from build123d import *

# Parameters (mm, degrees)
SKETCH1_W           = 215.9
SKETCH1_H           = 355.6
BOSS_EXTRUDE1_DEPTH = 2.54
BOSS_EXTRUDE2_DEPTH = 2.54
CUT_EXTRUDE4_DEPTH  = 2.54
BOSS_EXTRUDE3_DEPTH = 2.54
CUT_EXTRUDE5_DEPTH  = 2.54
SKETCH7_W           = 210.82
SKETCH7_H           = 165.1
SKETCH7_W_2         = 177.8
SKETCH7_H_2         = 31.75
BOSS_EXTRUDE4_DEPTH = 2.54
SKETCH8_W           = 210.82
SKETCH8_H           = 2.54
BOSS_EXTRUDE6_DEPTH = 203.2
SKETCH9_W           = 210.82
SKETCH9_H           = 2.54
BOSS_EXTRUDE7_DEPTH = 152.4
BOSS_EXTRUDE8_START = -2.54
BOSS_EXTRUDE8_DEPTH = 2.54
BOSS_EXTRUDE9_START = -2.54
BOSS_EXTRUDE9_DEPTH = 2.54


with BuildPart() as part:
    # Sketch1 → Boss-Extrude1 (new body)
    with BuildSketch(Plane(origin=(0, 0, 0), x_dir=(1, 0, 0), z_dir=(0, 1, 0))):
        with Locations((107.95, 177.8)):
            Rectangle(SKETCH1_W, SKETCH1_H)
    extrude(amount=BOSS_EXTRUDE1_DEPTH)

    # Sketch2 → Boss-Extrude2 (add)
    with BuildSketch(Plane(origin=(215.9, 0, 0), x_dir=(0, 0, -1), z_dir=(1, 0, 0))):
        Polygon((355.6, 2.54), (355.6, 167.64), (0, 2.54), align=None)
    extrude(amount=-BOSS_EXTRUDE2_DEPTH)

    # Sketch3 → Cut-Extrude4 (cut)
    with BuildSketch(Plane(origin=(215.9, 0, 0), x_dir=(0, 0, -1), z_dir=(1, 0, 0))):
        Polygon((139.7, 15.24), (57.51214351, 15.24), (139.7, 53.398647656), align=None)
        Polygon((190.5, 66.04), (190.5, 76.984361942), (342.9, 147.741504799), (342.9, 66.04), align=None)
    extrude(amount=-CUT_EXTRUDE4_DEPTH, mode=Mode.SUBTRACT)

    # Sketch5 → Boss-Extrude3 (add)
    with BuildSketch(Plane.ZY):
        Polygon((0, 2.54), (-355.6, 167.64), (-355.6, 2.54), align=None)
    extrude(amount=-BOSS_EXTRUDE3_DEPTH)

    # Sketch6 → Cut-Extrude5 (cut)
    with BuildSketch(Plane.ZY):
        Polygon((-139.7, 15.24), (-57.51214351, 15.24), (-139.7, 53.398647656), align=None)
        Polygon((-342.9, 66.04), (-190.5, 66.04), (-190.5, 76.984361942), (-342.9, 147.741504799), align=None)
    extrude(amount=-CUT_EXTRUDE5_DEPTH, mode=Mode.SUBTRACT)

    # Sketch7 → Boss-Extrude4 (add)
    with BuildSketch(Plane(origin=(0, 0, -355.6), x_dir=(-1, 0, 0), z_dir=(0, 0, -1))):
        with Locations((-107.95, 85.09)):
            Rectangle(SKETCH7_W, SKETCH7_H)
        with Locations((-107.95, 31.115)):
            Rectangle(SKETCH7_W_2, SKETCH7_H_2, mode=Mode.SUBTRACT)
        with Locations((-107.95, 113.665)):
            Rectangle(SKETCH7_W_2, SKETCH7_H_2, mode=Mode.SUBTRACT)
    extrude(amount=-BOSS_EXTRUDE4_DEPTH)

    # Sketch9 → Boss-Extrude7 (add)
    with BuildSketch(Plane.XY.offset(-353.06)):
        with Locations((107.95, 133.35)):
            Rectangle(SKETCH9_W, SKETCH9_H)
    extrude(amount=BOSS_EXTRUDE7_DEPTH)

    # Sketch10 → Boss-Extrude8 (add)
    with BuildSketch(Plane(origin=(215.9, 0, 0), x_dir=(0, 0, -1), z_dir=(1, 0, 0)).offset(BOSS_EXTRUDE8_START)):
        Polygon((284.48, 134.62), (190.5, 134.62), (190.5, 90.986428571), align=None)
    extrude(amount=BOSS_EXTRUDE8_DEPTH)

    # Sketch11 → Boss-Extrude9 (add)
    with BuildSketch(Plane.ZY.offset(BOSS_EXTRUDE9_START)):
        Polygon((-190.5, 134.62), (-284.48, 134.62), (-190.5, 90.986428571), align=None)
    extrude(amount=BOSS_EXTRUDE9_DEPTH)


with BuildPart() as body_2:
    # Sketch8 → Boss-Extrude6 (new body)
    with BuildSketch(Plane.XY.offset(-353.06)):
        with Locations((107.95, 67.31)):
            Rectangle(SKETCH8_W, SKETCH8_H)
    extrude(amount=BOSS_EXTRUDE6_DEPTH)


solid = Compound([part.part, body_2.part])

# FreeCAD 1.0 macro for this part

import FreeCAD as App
import Part
import Sketcher

V = App.Vector
Q = App.Units.Quantity


def add_polygon(sketch, points):
    """Adds a closed chain of lines whose ends are joined by coincident constraints."""
    first, n = sketch.GeometryCount, len(points)
    for a, b in zip(points, points[1:] + points[:1]):
        sketch.addGeometry(Part.LineSegment(App.Vector(*a, 0), App.Vector(*b, 0)), False)
    for i in range(n):
        sketch.addConstraint(Sketcher.Constraint("Coincident", first + i, 2, first + (i + 1) % n, 1))

doc = App.newDocument("Part")
body = doc.addObject("PartDesign::Body", "Body")

sketch1 = doc.addObject("Sketcher::SketchObject", "Sketch")
body.addObject(sketch1)
sketch1.AttachmentSupport = (doc.XZ_Plane, [""])
sketch1.MapMode = "FlatFace"
add_polygon(sketch1, [(0, -356), (0, 0), (216, 0), (216, -356)])
sketch1.addConstraint(Sketcher.Constraint("Vertical", 0))
sketch1.addConstraint(Sketcher.Constraint("Horizontal", 1))
sketch1.addConstraint(Sketcher.Constraint("Vertical", 2))
sketch1.addConstraint(Sketcher.Constraint("Horizontal", 3))
sketch1.addConstraint(Sketcher.Constraint("Coincident", 0, 2, -1, 1))
sketch1.addConstraint(Sketcher.Constraint("DistanceY", 0, 1, 0, 2, Q("14 in")))
sketch1.addConstraint(Sketcher.Constraint("DistanceX", 1, 1, 1, 2, Q("8.5 in")))
pad1 = doc.addObject("PartDesign::Pad", "Pad")
body.addObject(pad1)
pad1.Profile = sketch1
pad1.Length = Q("0.1 in")
pad1.Reversed = True

sketch2 = doc.addObject("Sketcher::SketchObject", "Sketch001")
body.addObject(sketch2)
sketch2.AttachmentSupport = (doc.YZ_Plane, [""])
sketch2.MapMode = "FlatFace"
sketch2.AttachmentOffset = App.Placement(V(0, 0, 8.5 * 25.4), App.Rotation())
add_polygon(sketch2, [(3, -356), (168, -356), (3, 0)])
sketch2.addConstraint(Sketcher.Constraint("Horizontal", 0))
sketch2.addConstraint(Sketcher.Constraint("Vertical", 2))
sketch2.addConstraint(Sketcher.Constraint("PointOnObject", 1, 2, -1))
sketch2.addConstraint(Sketcher.Constraint("DistanceY", 2, 2, 2, 1, Q("14 in")))
sketch2.addConstraint(Sketcher.Constraint("DistanceX", 0, 1, 0, 2, Q("6.5 in")))
sketch2.addConstraint(Sketcher.Constraint("DistanceX", -1, 1, 0, 2, Q("6.6 in")))
pad2 = doc.addObject("PartDesign::Pad", "Pad001")
body.addObject(pad2)
pad2.Profile = sketch2
pad2.Length = Q("0.1 in")
pad2.Reversed = True

sketch3 = doc.addObject("Sketcher::SketchObject", "Sketch002")
body.addObject(sketch3)
sketch3.AttachmentSupport = (doc.YZ_Plane, [""])
sketch3.MapMode = "FlatFace"
sketch3.AttachmentOffset = App.Placement(V(0, 0, 8.5 * 25.4), App.Rotation())
add_polygon(sketch3, [(15, -58), (15, -140), (53, -140)])
add_polygon(sketch3, [(77, -190), (66, -190), (66, -343), (148, -343)])
sketch3.addConstraint(Sketcher.Constraint("Vertical", 0))
sketch3.addConstraint(Sketcher.Constraint("Horizontal", 1))
sketch3.addConstraint(Sketcher.Constraint("Horizontal", 3))
sketch3.addConstraint(Sketcher.Constraint("Vertical", 4))
sketch3.addConstraint(Sketcher.Constraint("Horizontal", 5))
sketch3.addConstraint(Sketcher.Constraint("Parallel", 2, 6))
sketch3.addConstraint(Sketcher.Constraint("DistanceY", 4, 2, 4, 1, Q("6 in")))
sketch3.addConstraint(Sketcher.Constraint("DistanceY", 3, 2, 1, 2, Q("2 in")))
sketch3.addConstraint(Sketcher.Constraint("DistanceX", 0, 2, 3, 2, Q("2 in")))
sketch3.addConstraint(Sketcher.Constraint("DistanceX", -1, 1, 0, 2, Q("0.6 in")))
sketch3.addConstraint(Sketcher.Constraint("DistanceY", 0, 2, -1, 1, Q("5.5 in")))
sketch3.addConstraint(Sketcher.Constraint("Distance", 6, 168.0248))
sketch3.addConstraint(Sketcher.Constraint("DistanceX", 3, 2, 3, 1, 10.944362))
sketch3.addConstraint(Sketcher.Constraint("Distance", 2, 90.614161))
pocket1 = doc.addObject("PartDesign::Pocket", "Pocket")
body.addObject(pocket1)
pocket1.Profile = sketch3
pocket1.Length = Q("0.1 in")

sketch4 = doc.addObject("Sketcher::SketchObject", "Sketch003")
body.addObject(sketch4)
sketch4.AttachmentSupport = (doc.YZ_Plane, [""])
sketch4.MapMode = "FlatFace"
add_polygon(sketch4, [(3, 0), (168, -356), (3, -356)])
sketch4.addConstraint(Sketcher.Constraint("Horizontal", 1))
sketch4.addConstraint(Sketcher.Constraint("Vertical", 2))
sketch4.addConstraint(Sketcher.Constraint("PointOnObject", 2, 2, -1))
sketch4.addConstraint(Sketcher.Constraint("DistanceY", 2, 1, 2, 2, Q("14 in")))
sketch4.addConstraint(Sketcher.Constraint("DistanceX", 1, 2, 1, 1, Q("6.5 in")))
sketch4.addConstraint(Sketcher.Constraint("DistanceX", -1, 1, 0, 2, Q("6.6 in")))
pad3 = doc.addObject("PartDesign::Pad", "Pad002")
body.addObject(pad3)
pad3.Profile = sketch4
pad3.Length = Q("0.1 in")

sketch5 = doc.addObject("Sketcher::SketchObject", "Sketch004")
body.addObject(sketch5)
sketch5.AttachmentSupport = (doc.YZ_Plane, [""])
sketch5.MapMode = "FlatFace"
add_polygon(sketch5, [(15, -140), (15, -58), (53, -140)])
add_polygon(sketch5, [(66, -343), (66, -190), (77, -190), (148, -343)])
sketch5.addConstraint(Sketcher.Constraint("Vertical", 0))
sketch5.addConstraint(Sketcher.Constraint("Horizontal", 2))
sketch5.addConstraint(Sketcher.Constraint("Vertical", 3))
sketch5.addConstraint(Sketcher.Constraint("Horizontal", 4))
sketch5.addConstraint(Sketcher.Constraint("Horizontal", 6))
sketch5.addConstraint(Sketcher.Constraint("Parallel", 1, 5))
sketch5.addConstraint(Sketcher.Constraint("DistanceY", 3, 1, 3, 2, Q("6 in")))
sketch5.addConstraint(Sketcher.Constraint("DistanceY", 3, 2, 1, 2, Q("2 in")))
sketch5.addConstraint(Sketcher.Constraint("DistanceX", 2, 2, 3, 2, Q("2 in")))
sketch5.addConstraint(Sketcher.Constraint("DistanceX", -1, 1, 0, 2, Q("0.6 in")))
sketch5.addConstraint(Sketcher.Constraint("DistanceY", 1, 2, -1, 1, Q("5.5 in")))
sketch5.addConstraint(Sketcher.Constraint("Distance", 5, 168.0248))
sketch5.addConstraint(Sketcher.Constraint("DistanceX", 4, 1, 4, 2, 10.944362))
sketch5.addConstraint(Sketcher.Constraint("Distance", 1, 90.614161))
pocket2 = doc.addObject("PartDesign::Pocket", "Pocket001")
body.addObject(pocket2)
pocket2.Profile = sketch5
pocket2.Length = Q("0.1 in")
pocket2.Reversed = True

sketch6 = doc.addObject("Sketcher::SketchObject", "Sketch005")
body.addObject(sketch6)
sketch6.AttachmentSupport = (doc.XY_Plane, [""])
sketch6.MapMode = "FlatFace"
sketch6.AttachmentOffset = App.Placement(V(0, 0, -14 * 25.4), App.Rotation())
add_polygon(sketch6, [(213, 168), (213, 3), (3, 3), (3, 168)])
add_polygon(sketch6, [(19, 15), (197, 15), (197, 47), (19, 47)])
add_polygon(sketch6, [(19, 98), (197, 98), (197, 130), (19, 130)])
sketch6.addConstraint(Sketcher.Constraint("Vertical", 0))
sketch6.addConstraint(Sketcher.Constraint("Horizontal", 1))
sketch6.addConstraint(Sketcher.Constraint("Vertical", 2))
sketch6.addConstraint(Sketcher.Constraint("Horizontal", 3))
sketch6.addConstraint(Sketcher.Constraint("Horizontal", 4))
sketch6.addConstraint(Sketcher.Constraint("Vertical", 5))
sketch6.addConstraint(Sketcher.Constraint("Horizontal", 6))
sketch6.addConstraint(Sketcher.Constraint("Vertical", 7))
sketch6.addConstraint(Sketcher.Constraint("Horizontal", 8))
sketch6.addConstraint(Sketcher.Constraint("Vertical", 9))
sketch6.addConstraint(Sketcher.Constraint("Horizontal", 10))
sketch6.addConstraint(Sketcher.Constraint("Vertical", 11))
sketch6.addConstraint(Sketcher.Constraint("Vertical", 5, 2, 8, 2))
sketch6.addConstraint(Sketcher.Constraint("Vertical", 7, 2, 10, 2))
sketch6.addConstraint(Sketcher.Constraint("Equal", 7, 9))
sketch6.addConstraint(Sketcher.Constraint("DistanceX", 4, 1, 4, 2, Q("7 in")))
sketch6.addConstraint(Sketcher.Constraint("DistanceX", 1, 2, 1, 1, Q("8.3 in")))
sketch6.addConstraint(Sketcher.Constraint("DistanceY", 0, 2, 0, 1, Q("6.5 in")))
sketch6.addConstraint(Sketcher.Constraint("DistanceY", 4, 2, 3, 2, Q("6 in")))
sketch6.addConstraint(Sketcher.Constraint("DistanceY", 5, 2, 8, 2, Q("2 in")))
sketch6.addConstraint(Sketcher.Constraint("DistanceY", 0, 2, 9, 2, Q("5 in")))
sketch6.addConstraint(Sketcher.Constraint("DistanceX", -1, 1, 0, 2, Q("8.4 in")))
sketch6.addConstraint(Sketcher.Constraint("DistanceY", -1, 1, 0, 2, Q("0.1 in")))
sketch6.addConstraint(Sketcher.Constraint("DistanceX", -1, 1, 4, 2, Q("7.75 in")))
pad4 = doc.addObject("PartDesign::Pad", "Pad003")
body.addObject(pad4)
pad4.Profile = sketch6
pad4.Length = Q("0.1 in")

sketch7 = doc.addObject("Sketcher::SketchObject", "Sketch006")
body.addObject(sketch7)
sketch7.AttachmentSupport = (doc.XY_Plane, [""])
sketch7.MapMode = "FlatFace"
sketch7.AttachmentOffset = App.Placement(V(0, 0, -13.9 * 25.4), App.Rotation())
add_polygon(sketch7, [(2.5, 134.6), (2.5, 132.1), (213.4, 132.1), (213.4, 134.6)])
sketch7.addConstraint(Sketcher.Constraint("Vertical", 0))
sketch7.addConstraint(Sketcher.Constraint("Horizontal", 1))
sketch7.addConstraint(Sketcher.Constraint("Vertical", 2))
sketch7.addConstraint(Sketcher.Constraint("Horizontal", 3))
sketch7.addConstraint(Sketcher.Constraint("DistanceX", 1, 1, 1, 2, Q("8.3 in")))
sketch7.addConstraint(Sketcher.Constraint("DistanceY", 0, 2, 0, 1, Q("0.1 in")))
sketch7.addConstraint(Sketcher.Constraint("DistanceX", -1, 1, 0, 2, Q("0.1 in")))
sketch7.addConstraint(Sketcher.Constraint("DistanceY", -1, 1, 0, 2, Q("5.2 in")))
pad5 = doc.addObject("PartDesign::Pad", "Pad004")
body.addObject(pad5)
pad5.Profile = sketch7
pad5.Length = Q("6 in")

sketch8 = doc.addObject("Sketcher::SketchObject", "Sketch007")
body.addObject(sketch8)
sketch8.AttachmentSupport = (doc.YZ_Plane, [""])
sketch8.MapMode = "FlatFace"
sketch8.AttachmentOffset = App.Placement(V(0, 0, 8.4 * 25.4), App.Rotation())
add_polygon(sketch8, [(135, -284), (135, -190), (91, -190)])
sketch8.addConstraint(Sketcher.Constraint("Vertical", 0))
sketch8.addConstraint(Sketcher.Constraint("Horizontal", 1))
sketch8.addConstraint(Sketcher.Constraint("DistanceY", 0, 1, 0, 2, Q("3.7 in")))
sketch8.addConstraint(Sketcher.Constraint("DistanceX", -1, 1, 0, 2, Q("5.3 in")))
sketch8.addConstraint(Sketcher.Constraint("DistanceY", 0, 2, -1, 1, Q("7.5 in")))
sketch8.addConstraint(Sketcher.Constraint("DistanceX", 1, 2, 1, 1, 43.633571))
pad6 = doc.addObject("PartDesign::Pad", "Pad005")
body.addObject(pad6)
pad6.Profile = sketch8
pad6.Length = Q("0.1 in")

sketch9 = doc.addObject("Sketcher::SketchObject", "Sketch008")
body.addObject(sketch9)
sketch9.AttachmentSupport = (doc.YZ_Plane, [""])
sketch9.MapMode = "FlatFace"
sketch9.AttachmentOffset = App.Placement(V(0, 0, 0.1 * 25.4), App.Rotation())
add_polygon(sketch9, [(135, -190), (135, -284), (91, -190)])
sketch9.addConstraint(Sketcher.Constraint("Vertical", 0))
sketch9.addConstraint(Sketcher.Constraint("Horizontal", 2))
sketch9.addConstraint(Sketcher.Constraint("DistanceY", 0, 2, 0, 1, Q("3.7 in")))
sketch9.addConstraint(Sketcher.Constraint("DistanceX", -1, 1, 0, 2, Q("5.3 in")))
sketch9.addConstraint(Sketcher.Constraint("DistanceY", 0, 2, -1, 1, Q("11.2 in")))
sketch9.addConstraint(Sketcher.Constraint("DistanceX", 2, 1, 2, 2, 43.633571))
pad7 = doc.addObject("PartDesign::Pad", "Pad006")
body.addObject(pad7)
pad7.Profile = sketch9
pad7.Length = Q("0.1 in")
pad7.Reversed = True
body2 = doc.addObject("PartDesign::Body", "Body001")

sketch10 = doc.addObject("Sketcher::SketchObject", "Sketch009")
body2.addObject(sketch10)
sketch10.AttachmentSupport = (doc.getObject("XY_Plane001"), [""])
sketch10.MapMode = "FlatFace"
sketch10.AttachmentOffset = App.Placement(V(0, 0, -13.9 * 25.4), App.Rotation())
add_polygon(sketch10, [(2.5, 68.6), (2.5, 66), (213.4, 66), (213.4, 68.6)])
sketch10.addConstraint(Sketcher.Constraint("Vertical", 0))
sketch10.addConstraint(Sketcher.Constraint("Horizontal", 1))
sketch10.addConstraint(Sketcher.Constraint("Vertical", 2))
sketch10.addConstraint(Sketcher.Constraint("Horizontal", 3))
sketch10.addConstraint(Sketcher.Constraint("DistanceX", 1, 1, 1, 2, Q("8.3 in")))
sketch10.addConstraint(Sketcher.Constraint("DistanceY", 0, 2, 0, 1, Q("0.1 in")))
sketch10.addConstraint(Sketcher.Constraint("DistanceX", -1, 1, 0, 2, Q("0.1 in")))
sketch10.addConstraint(Sketcher.Constraint("DistanceY", -1, 1, 0, 2, Q("2.6 in")))
pad8 = doc.addObject("PartDesign::Pad", "Pad007")
body2.addObject(pad8)
pad8.Profile = sketch10
pad8.Length = Q("8 in")

doc.recompute()
